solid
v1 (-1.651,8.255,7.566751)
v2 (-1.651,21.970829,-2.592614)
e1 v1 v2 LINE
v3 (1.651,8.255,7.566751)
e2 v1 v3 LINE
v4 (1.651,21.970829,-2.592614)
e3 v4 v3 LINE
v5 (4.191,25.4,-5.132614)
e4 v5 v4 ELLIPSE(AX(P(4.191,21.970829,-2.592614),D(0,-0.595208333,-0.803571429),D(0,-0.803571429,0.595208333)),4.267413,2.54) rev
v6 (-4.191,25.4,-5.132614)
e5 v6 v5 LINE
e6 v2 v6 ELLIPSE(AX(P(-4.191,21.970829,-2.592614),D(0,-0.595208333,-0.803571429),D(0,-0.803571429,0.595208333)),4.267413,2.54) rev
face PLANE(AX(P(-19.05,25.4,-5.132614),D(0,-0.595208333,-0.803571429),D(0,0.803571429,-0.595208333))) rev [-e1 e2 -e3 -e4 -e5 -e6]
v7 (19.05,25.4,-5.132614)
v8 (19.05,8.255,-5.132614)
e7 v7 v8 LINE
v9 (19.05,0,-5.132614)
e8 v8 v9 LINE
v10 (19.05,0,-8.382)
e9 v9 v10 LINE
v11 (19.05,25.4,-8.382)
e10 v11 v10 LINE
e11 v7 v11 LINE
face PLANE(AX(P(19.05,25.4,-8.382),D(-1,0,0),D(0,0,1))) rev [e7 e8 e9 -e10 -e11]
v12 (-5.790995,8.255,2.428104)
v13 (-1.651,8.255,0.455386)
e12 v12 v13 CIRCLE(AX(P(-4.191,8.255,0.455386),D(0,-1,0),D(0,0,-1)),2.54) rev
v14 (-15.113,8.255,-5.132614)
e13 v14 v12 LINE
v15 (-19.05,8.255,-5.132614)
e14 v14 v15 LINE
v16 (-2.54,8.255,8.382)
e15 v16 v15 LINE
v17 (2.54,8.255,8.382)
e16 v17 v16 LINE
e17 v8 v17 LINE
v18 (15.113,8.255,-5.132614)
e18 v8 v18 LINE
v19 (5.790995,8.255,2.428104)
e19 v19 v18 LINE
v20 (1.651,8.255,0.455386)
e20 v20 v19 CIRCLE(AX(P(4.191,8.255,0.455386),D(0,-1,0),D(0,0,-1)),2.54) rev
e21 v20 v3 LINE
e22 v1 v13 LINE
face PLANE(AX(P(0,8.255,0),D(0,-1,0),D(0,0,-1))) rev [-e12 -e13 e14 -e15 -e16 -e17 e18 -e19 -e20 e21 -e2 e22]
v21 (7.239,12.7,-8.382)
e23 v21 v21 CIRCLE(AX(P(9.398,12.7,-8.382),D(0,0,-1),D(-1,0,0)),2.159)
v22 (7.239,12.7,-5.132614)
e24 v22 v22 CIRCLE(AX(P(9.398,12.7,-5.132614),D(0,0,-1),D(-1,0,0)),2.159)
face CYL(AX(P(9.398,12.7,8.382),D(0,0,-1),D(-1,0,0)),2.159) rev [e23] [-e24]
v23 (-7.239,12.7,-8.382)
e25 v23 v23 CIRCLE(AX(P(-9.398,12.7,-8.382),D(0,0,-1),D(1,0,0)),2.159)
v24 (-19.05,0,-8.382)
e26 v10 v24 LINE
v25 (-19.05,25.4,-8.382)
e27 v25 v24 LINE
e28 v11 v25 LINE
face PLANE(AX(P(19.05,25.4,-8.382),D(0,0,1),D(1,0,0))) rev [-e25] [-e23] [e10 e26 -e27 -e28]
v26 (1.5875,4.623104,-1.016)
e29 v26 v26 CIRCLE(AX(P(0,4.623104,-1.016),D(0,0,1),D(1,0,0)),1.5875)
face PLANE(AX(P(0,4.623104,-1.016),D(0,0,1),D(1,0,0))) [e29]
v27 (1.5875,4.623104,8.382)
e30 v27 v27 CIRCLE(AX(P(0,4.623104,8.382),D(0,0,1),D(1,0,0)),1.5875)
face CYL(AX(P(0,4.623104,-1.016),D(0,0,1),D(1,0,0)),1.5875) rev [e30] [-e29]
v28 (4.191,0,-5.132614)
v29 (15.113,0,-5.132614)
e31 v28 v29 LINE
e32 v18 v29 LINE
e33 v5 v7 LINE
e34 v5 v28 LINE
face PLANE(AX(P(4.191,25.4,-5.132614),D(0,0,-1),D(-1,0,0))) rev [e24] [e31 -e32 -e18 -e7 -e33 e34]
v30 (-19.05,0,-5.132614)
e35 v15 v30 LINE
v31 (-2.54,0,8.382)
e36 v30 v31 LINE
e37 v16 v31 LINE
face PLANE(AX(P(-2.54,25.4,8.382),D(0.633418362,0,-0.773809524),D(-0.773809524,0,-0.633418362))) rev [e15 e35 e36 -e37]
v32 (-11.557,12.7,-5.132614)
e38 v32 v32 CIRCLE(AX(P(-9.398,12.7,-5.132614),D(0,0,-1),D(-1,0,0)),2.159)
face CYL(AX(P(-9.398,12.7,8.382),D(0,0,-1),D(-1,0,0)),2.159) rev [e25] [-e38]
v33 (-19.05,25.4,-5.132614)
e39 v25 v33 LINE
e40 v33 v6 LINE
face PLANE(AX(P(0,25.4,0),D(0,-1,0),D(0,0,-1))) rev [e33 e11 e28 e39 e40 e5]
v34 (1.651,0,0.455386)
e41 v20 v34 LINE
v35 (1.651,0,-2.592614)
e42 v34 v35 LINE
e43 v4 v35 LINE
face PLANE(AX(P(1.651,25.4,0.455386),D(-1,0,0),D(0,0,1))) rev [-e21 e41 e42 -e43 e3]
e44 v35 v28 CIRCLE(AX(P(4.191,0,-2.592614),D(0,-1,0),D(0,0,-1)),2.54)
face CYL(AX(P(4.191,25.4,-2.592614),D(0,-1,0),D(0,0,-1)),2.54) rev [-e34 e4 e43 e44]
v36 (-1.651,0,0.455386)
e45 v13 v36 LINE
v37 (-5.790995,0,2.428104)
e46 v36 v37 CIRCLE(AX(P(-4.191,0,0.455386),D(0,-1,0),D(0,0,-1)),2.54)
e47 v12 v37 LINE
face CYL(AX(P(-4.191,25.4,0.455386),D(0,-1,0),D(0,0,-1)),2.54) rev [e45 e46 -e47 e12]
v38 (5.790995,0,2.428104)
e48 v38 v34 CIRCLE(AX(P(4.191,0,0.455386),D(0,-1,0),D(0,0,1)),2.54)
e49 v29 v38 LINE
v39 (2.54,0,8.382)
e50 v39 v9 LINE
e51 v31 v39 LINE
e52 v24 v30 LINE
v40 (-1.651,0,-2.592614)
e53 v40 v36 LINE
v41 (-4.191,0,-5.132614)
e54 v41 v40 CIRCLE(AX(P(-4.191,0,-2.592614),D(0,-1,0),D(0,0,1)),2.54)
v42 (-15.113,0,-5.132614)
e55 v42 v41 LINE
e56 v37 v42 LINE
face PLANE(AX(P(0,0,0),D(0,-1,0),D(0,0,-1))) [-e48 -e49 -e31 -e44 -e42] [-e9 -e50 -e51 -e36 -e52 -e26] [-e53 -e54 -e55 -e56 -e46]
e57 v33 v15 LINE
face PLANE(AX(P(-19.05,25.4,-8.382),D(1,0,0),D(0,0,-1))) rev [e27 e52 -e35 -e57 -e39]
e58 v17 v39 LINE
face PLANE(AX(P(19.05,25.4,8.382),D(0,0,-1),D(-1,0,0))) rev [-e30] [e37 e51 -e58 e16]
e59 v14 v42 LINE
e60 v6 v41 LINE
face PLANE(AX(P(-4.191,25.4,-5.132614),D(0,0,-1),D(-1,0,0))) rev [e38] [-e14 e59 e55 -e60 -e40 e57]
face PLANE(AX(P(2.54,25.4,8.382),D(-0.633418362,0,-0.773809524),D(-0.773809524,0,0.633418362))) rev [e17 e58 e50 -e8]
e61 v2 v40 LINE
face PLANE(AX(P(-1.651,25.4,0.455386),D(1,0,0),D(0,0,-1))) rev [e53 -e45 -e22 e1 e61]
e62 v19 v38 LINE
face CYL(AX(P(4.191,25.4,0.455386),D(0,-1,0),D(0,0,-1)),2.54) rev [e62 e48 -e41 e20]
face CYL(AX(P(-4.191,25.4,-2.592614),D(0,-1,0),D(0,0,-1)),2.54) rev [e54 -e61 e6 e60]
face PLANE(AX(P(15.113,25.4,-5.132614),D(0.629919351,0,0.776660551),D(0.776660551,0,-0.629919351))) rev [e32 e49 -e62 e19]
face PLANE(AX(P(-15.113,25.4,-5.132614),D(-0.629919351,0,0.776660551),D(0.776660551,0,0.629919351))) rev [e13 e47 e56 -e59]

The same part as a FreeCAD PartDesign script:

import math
import FreeCAD as App
import Part
import Sketcher
Q = App.Units.Quantity


def add_polygon(sketch, points):
    """Adds a closed chain of lines whose ends are joined by coincident constraints."""
    first, n = sketch.GeometryCount, len(points)
    for a, b in zip(points, points[1:] + points[:1]):
        sketch.addGeometry(Part.LineSegment(App.Vector(*a, 0), App.Vector(*b, 0)), False)
    for i in range(n):
        sketch.addConstraint(Sketcher.Constraint("Coincident", first + i, 2, first + (i + 1) % n, 1))

doc = App.newDocument("Part")
body = doc.addObject("PartDesign::Body", "Body")

# Sketch on XZ plane
sketch1 = doc.addObject("Sketcher::SketchObject", "Sketch")
body.addObject(sketch1)
sketch1.AttachmentSupport = (doc.XZ_Plane, [""])
sketch1.MapMode = "FlatFace"
add_polygon(sketch1, [(-19, -8), (-19, 8), (19, 8), (19, -8)])  # lines 0-3
sketch1.addConstraint(Sketcher.Constraint("Vertical", 0))
sketch1.addConstraint(Sketcher.Constraint("Horizontal", 1))
sketch1.addConstraint(Sketcher.Constraint("Vertical", 2))
sketch1.addConstraint(Sketcher.Constraint("Horizontal", 3))
sketch1.addConstraint(Sketcher.Constraint("Symmetric", 0, 2, 2, 2, -1, 1))
sketch1.addConstraint(Sketcher.Constraint("DistanceX", 1, 1, 1, 2, Q("1.5 in")))
sketch1.addConstraint(Sketcher.Constraint("DistanceY", 0, 1, 0, 2, Q("0.66 in")))
pad1 = doc.addObject("PartDesign::Pad", "Pad")
body.addObject(pad1)
pad1.Profile = sketch1
pad1.Length = Q("1 in")
pad1.Reversed = True

# Sketch on XZ plane
sketch2 = doc.addObject("Sketcher::SketchObject", "Sketch001")
body.addObject(sketch2)
sketch2.AttachmentSupport = (doc.XZ_Plane, [""])
sketch2.MapMode = "FlatFace"
add_polygon(sketch2, [(-19, -5), (-3, 8), (-19, 8)])  # lines 0-2
add_polygon(sketch2, [(19, -5), (19, 8), (3, 8)])  # lines 3-5
sketch2.addConstraint(Sketcher.Constraint("Horizontal", 1))
sketch2.addConstraint(Sketcher.Constraint("Vertical", 2))
sketch2.addConstraint(Sketcher.Constraint("Vertical", 3))
sketch2.addConstraint(Sketcher.Constraint("Horizontal", 4))
sketch2.addConstraint(Sketcher.Constraint("Symmetric", 1, 2, 3, 2, -2))
sketch2.addConstraint(Sketcher.Constraint("Horizontal", 2, 2, 5, 2))
sketch2.addConstraint(Sketcher.Constraint("Equal", 1, 4))
sketch2.addConstraint(Sketcher.Constraint("DistanceX", 1, 2, 1, 1, Q("0.65 in")))
sketch2.addConstraint(Sketcher.Constraint("DistanceX", 0, 2, -1, 1, Q("0.1 in")))
sketch2.addConstraint(Sketcher.Constraint("Distance", 0, Q("0.84 in")))
sketch2.addConstraint(Sketcher.Constraint("DistanceY", -1, 1, 0, 2, Q("0.33 in")))
pocket1 = doc.addObject("PartDesign::Pocket", "Pocket")
body.addObject(pocket1)
pocket1.Profile = sketch2
pocket1.Type = "ThroughAll"

# Sketch on XZ plane
sketch3 = doc.addObject("Sketcher::SketchObject", "Sketch002")
body.addObject(sketch3)
sketch3.AttachmentSupport = (doc.XZ_Plane, [""])
sketch3.MapMode = "FlatFace"
sketch3.addGeometry(Part.LineSegment(App.Vector(-15.1, -5.1, 0), App.Vector(-4.2, -5.1, 0)), False)
sketch3.addGeometry(Part.ArcOfCircle(Part.Circle(App.Vector(-4.2, -2.6, 0), App.Vector(0, 0, 1), 2.5), math.radians(-90), math.radians(0)), False)
sketch3.addGeometry(Part.LineSegment(App.Vector(-1.7, -2.6, 0), App.Vector(-1.7, 0.5, 0)), False)
sketch3.addGeometry(Part.ArcOfCircle(Part.Circle(App.Vector(-4.2, 0.5, 0), App.Vector(0, 0, 1), 2.5), math.radians(0), math.radians(129)), False)
sketch3.addGeometry(Part.LineSegment(App.Vector(-5.8, 2.4, 0), App.Vector(-15.1, -5.1, 0)), False)
sketch3.addGeometry(Part.LineSegment(App.Vector(1.7, 0.5, 0), App.Vector(1.7, -2.6, 0)), False)
sketch3.addGeometry(Part.ArcOfCircle(Part.Circle(App.Vector(4.2, -2.6, 0), App.Vector(0, 0, 1), 2.5), math.radians(-180), math.radians(-90)), False)
sketch3.addGeometry(Part.LineSegment(App.Vector(4.2, -5.1, 0), App.Vector(15.1, -5.1, 0)), False)
sketch3.addGeometry(Part.LineSegment(App.Vector(15.1, -5.1, 0), App.Vector(5.8, 2.4, 0)), False)
sketch3.addGeometry(Part.ArcOfCircle(Part.Circle(App.Vector(4.2, 0.5, 0), App.Vector(0, 0, 1), 2.5), math.radians(51), math.radians(180)), False)
sketch3.addConstraint(Sketcher.Constraint("Tangent", 0, 2, 1, 1))
sketch3.addConstraint(Sketcher.Constraint("Tangent", 1, 2, 2, 1))
sketch3.addConstraint(Sketcher.Constraint("Tangent", 2, 2, 3, 1))
sketch3.addConstraint(Sketcher.Constraint("Tangent", 3, 2, 4, 1))
sketch3.addConstraint(Sketcher.Constraint("Coincident", 4, 2, 0, 1))
sketch3.addConstraint(Sketcher.Constraint("Tangent", 5, 2, 6, 1))
sketch3.addConstraint(Sketcher.Constraint("Tangent", 6, 2, 7, 1))
sketch3.addConstraint(Sketcher.Constraint("Coincident", 7, 2, 8, 1))
sketch3.addConstraint(Sketcher.Constraint("Tangent", 8, 2, 9, 1))
sketch3.addConstraint(Sketcher.Constraint("Tangent", 9, 2, 5, 1))
sketch3.addConstraint(Sketcher.Constraint("Horizontal", 0))
sketch3.addConstraint(Sketcher.Constraint("Vertical", 2))
sketch3.addConstraint(Sketcher.Constraint("Vertical", 5))
sketch3.addConstraint(Sketcher.Constraint("Horizontal", 7))
sketch3.addConstraint(Sketcher.Constraint("Equal", 1, 3))
sketch3.addConstraint(Sketcher.Constraint("Equal", 3, 6))
sketch3.addConstraint(Sketcher.Constraint("Equal", 6, 9))
sketch3.addConstraint(Sketcher.Constraint("Symmetric", 1, 3, 6, 3, -2))
sketch3.addConstraint(Sketcher.Constraint("Symmetric", 3, 2, 8, 2, -2))
sketch3.addConstraint(Sketcher.Constraint("Radius", 1, Q("0.1 in")))
sketch3.addConstraint(Sketcher.Constraint("DistanceX", 0, 1, 0, 2, Q("0.43 in")))
sketch3.addConstraint(Sketcher.Constraint("DistanceY", 2, 1, 2, 2, Q("0.12 in")))
sketch3.addConstraint(Sketcher.Constraint("DistanceX", 1, 3, 6, 3, Q("0.33 in")))
sketch3.addConstraint(Sketcher.Constraint("DistanceY", 1, 3, -1, 1, Q("2.592614 mm")))
pocket2 = doc.addObject("PartDesign::Pocket", "Pocket001")
body.addObject(pocket2)
pocket2.Profile = sketch3
pocket2.Type = "ThroughAll"

# Sketch on XZ plane
sketch4 = doc.addObject("Sketcher::SketchObject", "Sketch003")
body.addObject(sketch4)
sketch4.AttachmentSupport = (doc.XZ_Plane, [""])
sketch4.MapMode = "FlatFace"
sketch4.AttachmentOffset = App.Placement(App.Vector(0, 0, -1 * 25.4), App.Rotation())
add_polygon(sketch4, [(2, 0), (2, 12), (19, -5), (4, -5)])  # lines 0-3
add_polygon(sketch4, [(-2, 0), (-4, -5), (-19, -5), (-2, 12)])  # lines 4-7
sketch4.addConstraint(Sketcher.Constraint("Vertical", 0))
sketch4.addConstraint(Sketcher.Constraint("Horizontal", 2))
sketch4.addConstraint(Sketcher.Constraint("Horizontal", 5))
sketch4.addConstraint(Sketcher.Constraint("Vertical", 7))
sketch4.addConstraint(Sketcher.Constraint("Symmetric", 2, 2, 4, 2, -2))
sketch4.addConstraint(Sketcher.Constraint("Symmetric", 0, 2, 6, 2, -2))
sketch4.addConstraint(Sketcher.Constraint("Horizontal", 3, 2, 7, 2))
sketch4.addConstraint(Sketcher.Constraint("Equal", 2, 5))
sketch4.addConstraint(Sketcher.Constraint("DistanceX", 0, 2, 2, 2, Q("0.1 in")))
sketch4.addConstraint(Sketcher.Constraint("DistanceX", 5, 2, 1, 2, Q("1.5 in")))
sketch4.addConstraint(Sketcher.Constraint("DistanceX", 2, 2, 2, 1, Q("0.585 in")))
sketch4.addConstraint(Sketcher.Constraint("DistanceY", 2, 2, 3, 2, Q("0.22 in")))
sketch4.addConstraint(Sketcher.Constraint("Distance", 1, Q("24.19688 mm")))
sketch4.addConstraint(Sketcher.Constraint("DistanceY", -1, 1, 0, 2, Q("11.682969 mm")))
pocket3 = doc.addObject("PartDesign::Pocket", "Pocket002")
body.addObject(pocket3)
pocket3.Profile = sketch4
pocket3.Length = Q("0.675 in")
pocket3.Reversed = True

# Sketch on XY plane
sketch5 = doc.addObject("Sketcher::SketchObject", "Sketch004")
body.addObject(sketch5)
sketch5.AttachmentSupport = (doc.XY_Plane, [""])
sketch5.MapMode = "FlatFace"
sketch5.AttachmentOffset = App.Placement(App.Vector(0, 0, -0.33 * 25.4), App.Rotation())
sketch5.addGeometry(Part.Circle(App.Vector(9.4, 12.7, 0), App.Vector(0, 0, 1), 2.2), False)
sketch5.addGeometry(Part.Circle(App.Vector(-9.4, 12.7, 0), App.Vector(0, 0, 1), 2.2), False)
sketch5.addConstraint(Sketcher.Constraint("Equal", 0, 1))
sketch5.addConstraint(Sketcher.Constraint("Symmetric", 0, 3, 1, 3, -2))
sketch5.addConstraint(Sketcher.Constraint("Diameter", 0, Q("0.17 in")))
sketch5.addConstraint(Sketcher.Constraint("DistanceY", -1, 1, 0, 3, Q("0.5 in")))
sketch5.addConstraint(Sketcher.Constraint("DistanceX", -1, 1, 0, 3, Q("0.37 in")))
pocket4 = doc.addObject("PartDesign::Pocket", "Pocket003")
body.addObject(pocket4)
pocket4.Profile = sketch5
pocket4.Type = "ThroughAll"
pocket4.Reversed = True

# Sketch on YZ plane
sketch6 = doc.addObject("Sketcher::SketchObject", "Sketch005")
body.addObject(sketch6)
sketch6.AttachmentSupport = (doc.YZ_Plane, [""])
sketch6.MapMode = "FlatFace"
sketch6.AttachmentOffset = App.Placement(App.Vector(0, 0, 0.065 * 25.4), App.Rotation())
add_polygon(sketch6, [(8.3, 7.6), (25.4, -5.1), (25.4, 10.1), (8.3, 10.1)])  # lines 0-3
sketch6.addConstraint(Sketcher.Constraint("Vertical", 1))
sketch6.addConstraint(Sketcher.Constraint("Horizontal", 2))
sketch6.addConstraint(Sketcher.Constraint("Vertical", 3))
sketch6.addConstraint(Sketcher.Constraint("DistanceX", -1, 1, 0, 2, Q("1 in")))
sketch6.addConstraint(Sketcher.Constraint("Distance", 0, Q("0.84 in")))
sketch6.addConstraint(Sketcher.Constraint("DistanceX", 2, 2, 2, 1, Q("0.675 in")))
sketch6.addConstraint(Sketcher.Constraint("DistanceY", 1, 1, 1, 2, Q("15.207902 mm")))
sketch6.addConstraint(Sketcher.Constraint("DistanceY", -1, 1, 3, 2, Q("7.566751 mm")))
pocket5 = doc.addObject("PartDesign::Pocket", "Pocket004")
body.addObject(pocket5)
pocket5.Profile = sketch6
pocket5.Type = "ThroughAll"
pocket5.Midplane = True

# Sketch on XY plane
sketch7 = doc.addObject("Sketcher::SketchObject", "Sketch006")
body.addObject(sketch7)
sketch7.AttachmentSupport = (doc.XY_Plane, [""])
sketch7.MapMode = "FlatFace"
sketch7.AttachmentOffset = App.Placement(App.Vector(0, 0, 0.33 * 25.4), App.Rotation())
sketch7.addGeometry(Part.Circle(App.Vector(0, 4.6, 0), App.Vector(0, 0, 1), 1.6), False)
sketch7.addConstraint(Sketcher.Constraint("PointOnObject", 0, 3, -2))
sketch7.addConstraint(Sketcher.Constraint("Diameter", 0, Q("0.125 in")))
sketch7.addConstraint(Sketcher.Constraint("DistanceY", -1, 1, 0, 3, Q("4.623104 mm")))
pocket6 = doc.addObject("PartDesign::Pocket", "Pocket005")
body.addObject(pocket6)
pocket6.Profile = sketch7
pocket6.Length = Q("0.37 in")

doc.recompute()
